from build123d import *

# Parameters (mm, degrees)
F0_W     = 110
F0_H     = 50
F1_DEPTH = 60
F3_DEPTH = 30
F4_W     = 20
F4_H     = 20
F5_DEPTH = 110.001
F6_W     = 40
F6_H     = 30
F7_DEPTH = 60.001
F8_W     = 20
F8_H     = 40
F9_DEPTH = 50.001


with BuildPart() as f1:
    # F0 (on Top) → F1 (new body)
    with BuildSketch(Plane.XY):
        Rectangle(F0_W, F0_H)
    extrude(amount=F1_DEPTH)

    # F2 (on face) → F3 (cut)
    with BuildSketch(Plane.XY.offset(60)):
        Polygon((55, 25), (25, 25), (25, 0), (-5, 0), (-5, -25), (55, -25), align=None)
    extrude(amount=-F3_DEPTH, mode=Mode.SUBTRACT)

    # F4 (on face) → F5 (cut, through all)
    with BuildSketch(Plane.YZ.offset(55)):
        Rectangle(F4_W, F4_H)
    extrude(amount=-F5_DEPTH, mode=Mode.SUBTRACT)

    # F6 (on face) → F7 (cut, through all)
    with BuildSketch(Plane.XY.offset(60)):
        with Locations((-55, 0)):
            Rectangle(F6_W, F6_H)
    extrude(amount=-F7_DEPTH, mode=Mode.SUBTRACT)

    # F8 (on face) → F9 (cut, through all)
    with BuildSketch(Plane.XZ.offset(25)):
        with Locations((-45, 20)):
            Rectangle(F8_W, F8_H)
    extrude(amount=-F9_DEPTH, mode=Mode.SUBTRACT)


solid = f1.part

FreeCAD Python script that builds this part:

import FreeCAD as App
import Part
import Sketcher
from FreeCAD import Vector
Q = App.Units.Quantity


def add_polygon(sketch, points):
    """Adds a closed chain of lines whose ends are joined by coincident constraints."""
    first, n = sketch.GeometryCount, len(points)
    for a, b in zip(points, points[1:] + points[:1]):
        sketch.addGeometry(Part.LineSegment(App.Vector(*a, 0), App.Vector(*b, 0)), False)
    for i in range(n):
        sketch.addConstraint(Sketcher.Constraint("Coincident", first + i, 2, first + (i + 1) % n, 1))

doc = App.newDocument("Part")
body = doc.addObject("PartDesign::Body", "Body")

# Sketch on XY plane
sketch1 = body.newObject("Sketcher::SketchObject", "Sketch")
sketch1.AttachmentSupport = (doc.getObject("XY_Plane"), [""])
sketch1.MapMode = "FlatFace"
add_polygon(sketch1, [(-55, 25), (-55, -25), (55, -25), (55, 25)])  # lines 0-3
sketch1.addConstraint(Sketcher.Constraint("Vertical", 0))
sketch1.addConstraint(Sketcher.Constraint("Horizontal", 1))
sketch1.addConstraint(Sketcher.Constraint("Vertical", 2))
sketch1.addConstraint(Sketcher.Constraint("Horizontal", 3))
sketch1.addConstraint(Sketcher.Constraint("Symmetric", 0, 2, 2, 2, -1, 1))
sketch1.addConstraint(Sketcher.Constraint("DistanceX", 1, 1, 1, 2, Q("110 mm")))
sketch1.addConstraint(Sketcher.Constraint("DistanceY", 0, 2, 0, 1, Q("50 mm")))
pad1 = body.newObject("PartDesign::Pad", "Pad")
pad1.Profile = sketch1
pad1.Length = 60

# Sketch on XY plane
sketch2 = body.newObject("Sketcher::SketchObject", "Sketch001")
sketch2.AttachmentSupport = (doc.getObject("XY_Plane"), [""])
sketch2.MapMode = "FlatFace"
sketch2.AttachmentOffset = App.Placement(Vector(0, 0, 60), App.Rotation())
add_polygon(sketch2, [(55, 25), (25, 25), (25, 0), (-5, 0), (-5, -25), (55, -25)])  # lines 0-5
sketch2.addConstraint(Sketcher.Constraint("Horizontal", 0))
sketch2.addConstraint(Sketcher.Constraint("Vertical", 1))
sketch2.addConstraint(Sketcher.Constraint("Horizontal", 2))
sketch2.addConstraint(Sketcher.Constraint("Vertical", 3))
sketch2.addConstraint(Sketcher.Constraint("Horizontal", 4))
sketch2.addConstraint(Sketcher.Constraint("Vertical", 5))
sketch2.addConstraint(Sketcher.Constraint("PointOnObject", 1, 2, -1))
sketch2.addConstraint(Sketcher.Constraint("Equal", 0, 2))
sketch2.addConstraint(Sketcher.Constraint("Equal", 1, 3))
sketch2.addConstraint(Sketcher.Constraint("DistanceX", 0, 2, 0, 1, Q("30 mm")))
sketch2.addConstraint(Sketcher.Constraint("DistanceY", 1, 2, 1, 1, Q("25 mm")))
sketch2.addConstraint(Sketcher.Constraint("DistanceX", -1, 1, 0, 2, Q("25 mm")))
pocket1 = body.newObject("PartDesign::Pocket", "Pocket")
pocket1.Profile = sketch2
pocket1.Length = 30

# Sketch on YZ plane
sketch3 = body.newObject("Sketcher::SketchObject", "Sketch002")
sketch3.AttachmentSupport = (doc.getObject("YZ_Plane"), [""])
sketch3.MapMode = "FlatFace"
sketch3.AttachmentOffset = App.Placement(Vector(0, 0, 55), App.Rotation())
add_polygon(sketch3, [(-10, 10), (-10, -10), (10, -10), (10, 10)])  # lines 0-3
sketch3.addConstraint(Sketcher.Constraint("Vertical", 0))
sketch3.addConstraint(Sketcher.Constraint("Horizontal", 1))
sketch3.addConstraint(Sketcher.Constraint("Vertical", 2))
sketch3.addConstraint(Sketcher.Constraint("Horizontal", 3))
sketch3.addConstraint(Sketcher.Constraint("Symmetric", 0, 2, 2, 2, -1, 1))
sketch3.addConstraint(Sketcher.Constraint("Equal", 3, 0))
sketch3.addConstraint(Sketcher.Constraint("DistanceX", 1, 1, 1, 2, Q("20 mm")))
pocket2 = body.newObject("PartDesign::Pocket", "Pocket001")
pocket2.Profile = sketch3
pocket2.Type = "ThroughAll"

# Sketch on XY plane
sketch4 = body.newObject("Sketcher::SketchObject", "Sketch003")
sketch4.AttachmentSupport = (doc.getObject("XY_Plane"), [""])
sketch4.MapMode = "FlatFace"
sketch4.AttachmentOffset = App.Placement(Vector(0, 0, 60), App.Rotation())
add_polygon(sketch4, [(-75, 15), (-75, -15), (-35, -15), (-35, 15)])  # lines 0-3
sketch4.addConstraint(Sketcher.Constraint("Vertical", 0))
sketch4.addConstraint(Sketcher.Constraint("Horizontal", 1))
sketch4.addConstraint(Sketcher.Constraint("Vertical", 2))
sketch4.addConstraint(Sketcher.Constraint("Horizontal", 3))
sketch4.addConstraint(Sketcher.Constraint("DistanceX", 1, 1, 1, 2, Q("40 mm")))
sketch4.addConstraint(Sketcher.Constraint("DistanceY", 0, 2, 0, 1, Q("30 mm")))
sketch4.addConstraint(Sketcher.Constraint("DistanceX", 0, 2, -1, 1, Q("75 mm")))
sketch4.addConstraint(Sketcher.Constraint("DistanceY", 0, 2, -1, 1, Q("15 mm")))
pocket3 = body.newObject("PartDesign::Pocket", "Pocket002")
pocket3.Profile = sketch4
pocket3.Type = "ThroughAll"

# Sketch on XZ plane
sketch5 = body.newObject("Sketcher::SketchObject", "Sketch004")
sketch5.AttachmentSupport = (doc.getObject("XZ_Plane"), [""])
sketch5.MapMode = "FlatFace"
sketch5.AttachmentOffset = App.Placement(Vector(0, 0, 25), App.Rotation())
add_polygon(sketch5, [(-55, 40), (-55, 0), (-35, 0), (-35, 40)])  # lines 0-3
sketch5.addConstraint(Sketcher.Constraint("Vertical", 0))
sketch5.addConstraint(Sketcher.Constraint("Horizontal", 1))
sketch5.addConstraint(Sketcher.Constraint("Vertical", 2))
sketch5.addConstraint(Sketcher.Constraint("Horizontal", 3))
sketch5.addConstraint(Sketcher.Constraint("PointOnObject", 0, 2, -1))
sketch5.addConstraint(Sketcher.Constraint("DistanceX", 1, 1, 1, 2, Q("20 mm")))
sketch5.addConstraint(Sketcher.Constraint("DistanceY", 0, 2, 0, 1, Q("40 mm")))
sketch5.addConstraint(Sketcher.Constraint("DistanceX", 0, 2, -1, 1, Q("55 mm")))
pocket4 = body.newObject("PartDesign::Pocket", "Pocket003")
pocket4.Profile = sketch5
pocket4.Type = "ThroughAll"

doc.recompute()
